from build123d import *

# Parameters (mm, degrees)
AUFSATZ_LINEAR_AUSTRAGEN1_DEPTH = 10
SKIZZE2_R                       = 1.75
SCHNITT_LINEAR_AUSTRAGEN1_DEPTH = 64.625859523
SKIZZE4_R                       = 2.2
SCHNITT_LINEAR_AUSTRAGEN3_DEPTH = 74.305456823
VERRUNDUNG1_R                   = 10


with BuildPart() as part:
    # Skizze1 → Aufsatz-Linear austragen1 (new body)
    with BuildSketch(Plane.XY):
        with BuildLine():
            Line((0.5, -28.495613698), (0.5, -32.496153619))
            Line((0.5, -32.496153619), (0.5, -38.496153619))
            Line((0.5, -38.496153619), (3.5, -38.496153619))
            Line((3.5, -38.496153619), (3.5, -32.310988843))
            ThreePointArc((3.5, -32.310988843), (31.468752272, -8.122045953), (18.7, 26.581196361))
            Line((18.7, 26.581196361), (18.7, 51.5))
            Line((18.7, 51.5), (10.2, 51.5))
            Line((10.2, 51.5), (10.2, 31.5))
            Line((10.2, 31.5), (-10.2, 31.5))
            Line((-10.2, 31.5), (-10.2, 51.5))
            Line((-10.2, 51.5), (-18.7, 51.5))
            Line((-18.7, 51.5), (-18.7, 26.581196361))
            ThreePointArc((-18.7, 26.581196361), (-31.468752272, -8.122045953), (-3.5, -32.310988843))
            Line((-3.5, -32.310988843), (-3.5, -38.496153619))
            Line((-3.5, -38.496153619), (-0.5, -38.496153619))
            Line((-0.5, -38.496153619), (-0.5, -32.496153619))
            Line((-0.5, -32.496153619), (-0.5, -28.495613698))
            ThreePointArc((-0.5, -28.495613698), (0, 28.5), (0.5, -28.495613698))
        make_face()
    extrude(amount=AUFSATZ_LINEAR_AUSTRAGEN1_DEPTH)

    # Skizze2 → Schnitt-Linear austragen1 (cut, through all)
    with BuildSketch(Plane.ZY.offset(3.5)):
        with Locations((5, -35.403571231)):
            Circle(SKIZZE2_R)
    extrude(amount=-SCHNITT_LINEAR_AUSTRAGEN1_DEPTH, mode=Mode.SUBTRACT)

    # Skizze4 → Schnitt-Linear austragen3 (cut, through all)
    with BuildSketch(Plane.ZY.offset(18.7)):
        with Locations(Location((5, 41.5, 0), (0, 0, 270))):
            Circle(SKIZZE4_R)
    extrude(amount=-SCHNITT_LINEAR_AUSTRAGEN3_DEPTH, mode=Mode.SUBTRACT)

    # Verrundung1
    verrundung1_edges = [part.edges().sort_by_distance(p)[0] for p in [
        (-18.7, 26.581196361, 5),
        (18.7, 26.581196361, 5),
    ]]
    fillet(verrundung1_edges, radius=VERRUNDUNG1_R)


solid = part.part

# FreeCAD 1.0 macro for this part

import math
import FreeCAD as App
import Part
import Sketcher


def edges_at(feature, points):
    """Names of the edges that pass closest to the given points."""
    edges = feature.Shape.Edges
    near = lambda p: min(range(len(edges)), key=lambda i: edges[i].distToShape(Part.Vertex(*p))[0])
    return sorted({f"Edge{near(p) + 1}" for p in points})

doc = App.newDocument("Part")
body = doc.addObject("PartDesign::Body", "Body")

# Sketch on XY plane
sketch1 = body.newObject("Sketcher::SketchObject", "Sketch")
sketch1.AttachmentSupport = (doc.getObject("XY_Plane"), [""])
sketch1.MapMode = "FlatFace"
sketch1.addGeometry(Part.LineSegment(App.Vector(0.5, -28.5, 0), App.Vector(0.5, -38.5, 0)), False)
sketch1.addGeometry(Part.LineSegment(App.Vector(0.5, -38.5, 0), App.Vector(3.5, -38.5, 0)), False)
sketch1.addGeometry(Part.LineSegment(App.Vector(3.5, -38.5, 0), App.Vector(3.5, -32.3, 0)), False)
sketch1.addGeometry(Part.ArcOfCircle(Part.Circle(App.Vector(0, 0, 0), App.Vector(0, 0, 1), 32.5), math.radians(-84), math.radians(55)), False)
sketch1.addGeometry(Part.LineSegment(App.Vector(18.7, 26.6, 0), App.Vector(18.7, 51.5, 0)), False)
sketch1.addGeometry(Part.LineSegment(App.Vector(18.7, 51.5, 0), App.Vector(10.2, 51.5, 0)), False)
sketch1.addGeometry(Part.LineSegment(App.Vector(10.2, 51.5, 0), App.Vector(10.2, 31.5, 0)), False)
sketch1.addGeometry(Part.LineSegment(App.Vector(10.2, 31.5, 0), App.Vector(-10.2, 31.5, 0)), False)
sketch1.addGeometry(Part.LineSegment(App.Vector(-10.2, 31.5, 0), App.Vector(-10.2, 51.5, 0)), False)
sketch1.addGeometry(Part.LineSegment(App.Vector(-10.2, 51.5, 0), App.Vector(-18.7, 51.5, 0)), False)
sketch1.addGeometry(Part.LineSegment(App.Vector(-18.7, 51.5, 0), App.Vector(-18.7, 26.6, 0)), False)
sketch1.addGeometry(Part.ArcOfCircle(Part.Circle(App.Vector(0, 0, 0), App.Vector(0, 0, 1), 32.5), math.radians(125), math.radians(264)), False)
sketch1.addGeometry(Part.LineSegment(App.Vector(-3.5, -32.3, 0), App.Vector(-3.5, -38.5, 0)), False)
sketch1.addGeometry(Part.LineSegment(App.Vector(-3.5, -38.5, 0), App.Vector(-0.5, -38.5, 0)), False)
sketch1.addGeometry(Part.LineSegment(App.Vector(-0.5, -38.5, 0), App.Vector(-0.5, -28.5, 0)), False)
sketch1.addGeometry(Part.ArcOfCircle(Part.Circle(App.Vector(0, 0, 0), App.Vector(0, 0, 1), 28.5), math.radians(-89), math.radians(269)), False)
sketch1.addConstraint(Sketcher.Constraint("Coincident", 0, 2, 1, 1))
sketch1.addConstraint(Sketcher.Constraint("Coincident", 1, 2, 2, 1))
sketch1.addConstraint(Sketcher.Constraint("Coincident", 2, 2, 3, 1))
sketch1.addConstraint(Sketcher.Constraint("Coincident", 3, 2, 4, 1))
sketch1.addConstraint(Sketcher.Constraint("Coincident", 4, 2, 5, 1))
sketch1.addConstraint(Sketcher.Constraint("Coincident", 5, 2, 6, 1))
sketch1.addConstraint(Sketcher.Constraint("Coincident", 6, 2, 7, 1))
sketch1.addConstraint(Sketcher.Constraint("Coincident", 7, 2, 8, 1))
sketch1.addConstraint(Sketcher.Constraint("Coincident", 8, 2, 9, 1))
sketch1.addConstraint(Sketcher.Constraint("Coincident", 9, 2, 10, 1))
sketch1.addConstraint(Sketcher.Constraint("Coincident", 10, 2, 11, 1))
sketch1.addConstraint(Sketcher.Constraint("Coincident", 11, 2, 12, 1))
sketch1.addConstraint(Sketcher.Constraint("Coincident", 12, 2, 13, 1))
sketch1.addConstraint(Sketcher.Constraint("Coincident", 13, 2, 14, 1))
sketch1.addConstraint(Sketcher.Constraint("Coincident", 14, 2, 15, 2))
sketch1.addConstraint(Sketcher.Constraint("Coincident", 15, 1, 0, 1))
sketch1.addConstraint(Sketcher.Constraint("Vertical", 0))
sketch1.addConstraint(Sketcher.Constraint("Horizontal", 1))
sketch1.addConstraint(Sketcher.Constraint("Vertical", 2))
sketch1.addConstraint(Sketcher.Constraint("Vertical", 4))
sketch1.addConstraint(Sketcher.Constraint("Horizontal", 5))
sketch1.addConstraint(Sketcher.Constraint("Vertical", 6))
sketch1.addConstraint(Sketcher.Constraint("Horizontal", 7))
sketch1.addConstraint(Sketcher.Constraint("Vertical", 8))
sketch1.addConstraint(Sketcher.Constraint("Horizontal", 9))
sketch1.addConstraint(Sketcher.Constraint("Vertical", 10))
sketch1.addConstraint(Sketcher.Constraint("Vertical", 12))
sketch1.addConstraint(Sketcher.Constraint("Horizontal", 13))
sketch1.addConstraint(Sketcher.Constraint("Vertical", 14))
sketch1.addConstraint(Sketcher.Constraint("Coincident", 3, 3, -1, 1))
sketch1.addConstraint(Sketcher.Constraint("Coincident", 11, 3, -1, 1))
sketch1.addConstraint(Sketcher.Constraint("Coincident", 15, 3, -1, 1))
sketch1.addConstraint(Sketcher.Constraint("Equal", 3, 11))
sketch1.addConstraint(Sketcher.Constraint("Symmetric", 5, 2, 8, 2, -2))
sketch1.addConstraint(Sketcher.Constraint("Symmetric", 1, 2, 12, 2, -2))
sketch1.addConstraint(Sketcher.Constraint("Horizontal", 3, 2, 10, 2))
sketch1.addConstraint(Sketcher.Constraint("Horizontal", 14, 2, 15, 1))
sketch1.addConstraint(Sketcher.Constraint("Radius", 3, 32.5))
sketch1.addConstraint(Sketcher.Constraint("Radius", 15, 28.5))
sketch1.addConstraint(Sketcher.Constraint("DistanceX", 1, 1, 1, 2, 3.0))
sketch1.addConstraint(Sketcher.Constraint("DistanceY", 6, 2, 6, 1, 20.0))
sketch1.addConstraint(Sketcher.Constraint("DistanceX", 5, 2, 5, 1, 8.5))
sketch1.addConstraint(Sketcher.Constraint("DistanceX", 7, 2, 7, 1, 20.4))
sketch1.addConstraint(Sketcher.Constraint("DistanceX", 11, 2, 2, 2, 7.0))
sketch1.addConstraint(Sketcher.Constraint("DistanceY", -1, 1, 4, 2, 51.5))
sketch1.addConstraint(Sketcher.Constraint("DistanceY", 0, 2, 0, 1, 10.00054))
pad1 = body.newObject("PartDesign::Pad", "Pad")
pad1.Profile = sketch1
pad1.Length = 10

# Sketch on YZ plane
sketch2 = body.newObject("Sketcher::SketchObject", "Sketch001")
sketch2.AttachmentSupport = (doc.getObject("YZ_Plane"), [""])
sketch2.MapMode = "FlatFace"
sketch2.AttachmentOffset = App.Placement(App.Vector(0, 0, -3.5), App.Rotation())
sketch2.addGeometry(Part.Circle(App.Vector(-35.4, 5, 0), App.Vector(0, 0, 1), 1.8), False)
sketch2.addConstraint(Sketcher.Constraint("Diameter", 0, 3.5))
sketch2.addConstraint(Sketcher.Constraint("DistanceY", -1, 1, 0, 3, 5.0))
sketch2.addConstraint(Sketcher.Constraint("DistanceX", 0, 3, -1, 1, 35.403571))
pocket1 = body.newObject("PartDesign::Pocket", "Pocket")
pocket1.Profile = sketch2
pocket1.Type = "ThroughAll"
pocket1.Reversed = True

# Sketch on YZ plane
sketch3 = body.newObject("Sketcher::SketchObject", "Sketch002")
sketch3.AttachmentSupport = (doc.getObject("YZ_Plane"), [""])
sketch3.MapMode = "FlatFace"
sketch3.AttachmentOffset = App.Placement(App.Vector(0, 0, -18.7), App.Rotation())
sketch3.addGeometry(Part.Circle(App.Vector(41.5, 5, 0), App.Vector(0, 0, 1), 2.2), False)
sketch3.addConstraint(Sketcher.Constraint("Diameter", 0, 4.4))
sketch3.addConstraint(Sketcher.Constraint("DistanceY", -1, 1, 0, 3, 5.0))
sketch3.addConstraint(Sketcher.Constraint("DistanceX", -1, 1, 0, 3, 41.5))
pocket2 = body.newObject("PartDesign::Pocket", "Pocket001")
pocket2.Profile = sketch3
pocket2.Type = "ThroughAll"
pocket2.Reversed = True
doc.recompute()

fillet = body.newObject("PartDesign::Fillet", "Fillet")
fillet.Base = (pocket2, edges_at(pocket2, [(-18.7, 26.581, 5), (18.7, 26.581, 5)]))
fillet.Radius = 10

doc.recompute()
